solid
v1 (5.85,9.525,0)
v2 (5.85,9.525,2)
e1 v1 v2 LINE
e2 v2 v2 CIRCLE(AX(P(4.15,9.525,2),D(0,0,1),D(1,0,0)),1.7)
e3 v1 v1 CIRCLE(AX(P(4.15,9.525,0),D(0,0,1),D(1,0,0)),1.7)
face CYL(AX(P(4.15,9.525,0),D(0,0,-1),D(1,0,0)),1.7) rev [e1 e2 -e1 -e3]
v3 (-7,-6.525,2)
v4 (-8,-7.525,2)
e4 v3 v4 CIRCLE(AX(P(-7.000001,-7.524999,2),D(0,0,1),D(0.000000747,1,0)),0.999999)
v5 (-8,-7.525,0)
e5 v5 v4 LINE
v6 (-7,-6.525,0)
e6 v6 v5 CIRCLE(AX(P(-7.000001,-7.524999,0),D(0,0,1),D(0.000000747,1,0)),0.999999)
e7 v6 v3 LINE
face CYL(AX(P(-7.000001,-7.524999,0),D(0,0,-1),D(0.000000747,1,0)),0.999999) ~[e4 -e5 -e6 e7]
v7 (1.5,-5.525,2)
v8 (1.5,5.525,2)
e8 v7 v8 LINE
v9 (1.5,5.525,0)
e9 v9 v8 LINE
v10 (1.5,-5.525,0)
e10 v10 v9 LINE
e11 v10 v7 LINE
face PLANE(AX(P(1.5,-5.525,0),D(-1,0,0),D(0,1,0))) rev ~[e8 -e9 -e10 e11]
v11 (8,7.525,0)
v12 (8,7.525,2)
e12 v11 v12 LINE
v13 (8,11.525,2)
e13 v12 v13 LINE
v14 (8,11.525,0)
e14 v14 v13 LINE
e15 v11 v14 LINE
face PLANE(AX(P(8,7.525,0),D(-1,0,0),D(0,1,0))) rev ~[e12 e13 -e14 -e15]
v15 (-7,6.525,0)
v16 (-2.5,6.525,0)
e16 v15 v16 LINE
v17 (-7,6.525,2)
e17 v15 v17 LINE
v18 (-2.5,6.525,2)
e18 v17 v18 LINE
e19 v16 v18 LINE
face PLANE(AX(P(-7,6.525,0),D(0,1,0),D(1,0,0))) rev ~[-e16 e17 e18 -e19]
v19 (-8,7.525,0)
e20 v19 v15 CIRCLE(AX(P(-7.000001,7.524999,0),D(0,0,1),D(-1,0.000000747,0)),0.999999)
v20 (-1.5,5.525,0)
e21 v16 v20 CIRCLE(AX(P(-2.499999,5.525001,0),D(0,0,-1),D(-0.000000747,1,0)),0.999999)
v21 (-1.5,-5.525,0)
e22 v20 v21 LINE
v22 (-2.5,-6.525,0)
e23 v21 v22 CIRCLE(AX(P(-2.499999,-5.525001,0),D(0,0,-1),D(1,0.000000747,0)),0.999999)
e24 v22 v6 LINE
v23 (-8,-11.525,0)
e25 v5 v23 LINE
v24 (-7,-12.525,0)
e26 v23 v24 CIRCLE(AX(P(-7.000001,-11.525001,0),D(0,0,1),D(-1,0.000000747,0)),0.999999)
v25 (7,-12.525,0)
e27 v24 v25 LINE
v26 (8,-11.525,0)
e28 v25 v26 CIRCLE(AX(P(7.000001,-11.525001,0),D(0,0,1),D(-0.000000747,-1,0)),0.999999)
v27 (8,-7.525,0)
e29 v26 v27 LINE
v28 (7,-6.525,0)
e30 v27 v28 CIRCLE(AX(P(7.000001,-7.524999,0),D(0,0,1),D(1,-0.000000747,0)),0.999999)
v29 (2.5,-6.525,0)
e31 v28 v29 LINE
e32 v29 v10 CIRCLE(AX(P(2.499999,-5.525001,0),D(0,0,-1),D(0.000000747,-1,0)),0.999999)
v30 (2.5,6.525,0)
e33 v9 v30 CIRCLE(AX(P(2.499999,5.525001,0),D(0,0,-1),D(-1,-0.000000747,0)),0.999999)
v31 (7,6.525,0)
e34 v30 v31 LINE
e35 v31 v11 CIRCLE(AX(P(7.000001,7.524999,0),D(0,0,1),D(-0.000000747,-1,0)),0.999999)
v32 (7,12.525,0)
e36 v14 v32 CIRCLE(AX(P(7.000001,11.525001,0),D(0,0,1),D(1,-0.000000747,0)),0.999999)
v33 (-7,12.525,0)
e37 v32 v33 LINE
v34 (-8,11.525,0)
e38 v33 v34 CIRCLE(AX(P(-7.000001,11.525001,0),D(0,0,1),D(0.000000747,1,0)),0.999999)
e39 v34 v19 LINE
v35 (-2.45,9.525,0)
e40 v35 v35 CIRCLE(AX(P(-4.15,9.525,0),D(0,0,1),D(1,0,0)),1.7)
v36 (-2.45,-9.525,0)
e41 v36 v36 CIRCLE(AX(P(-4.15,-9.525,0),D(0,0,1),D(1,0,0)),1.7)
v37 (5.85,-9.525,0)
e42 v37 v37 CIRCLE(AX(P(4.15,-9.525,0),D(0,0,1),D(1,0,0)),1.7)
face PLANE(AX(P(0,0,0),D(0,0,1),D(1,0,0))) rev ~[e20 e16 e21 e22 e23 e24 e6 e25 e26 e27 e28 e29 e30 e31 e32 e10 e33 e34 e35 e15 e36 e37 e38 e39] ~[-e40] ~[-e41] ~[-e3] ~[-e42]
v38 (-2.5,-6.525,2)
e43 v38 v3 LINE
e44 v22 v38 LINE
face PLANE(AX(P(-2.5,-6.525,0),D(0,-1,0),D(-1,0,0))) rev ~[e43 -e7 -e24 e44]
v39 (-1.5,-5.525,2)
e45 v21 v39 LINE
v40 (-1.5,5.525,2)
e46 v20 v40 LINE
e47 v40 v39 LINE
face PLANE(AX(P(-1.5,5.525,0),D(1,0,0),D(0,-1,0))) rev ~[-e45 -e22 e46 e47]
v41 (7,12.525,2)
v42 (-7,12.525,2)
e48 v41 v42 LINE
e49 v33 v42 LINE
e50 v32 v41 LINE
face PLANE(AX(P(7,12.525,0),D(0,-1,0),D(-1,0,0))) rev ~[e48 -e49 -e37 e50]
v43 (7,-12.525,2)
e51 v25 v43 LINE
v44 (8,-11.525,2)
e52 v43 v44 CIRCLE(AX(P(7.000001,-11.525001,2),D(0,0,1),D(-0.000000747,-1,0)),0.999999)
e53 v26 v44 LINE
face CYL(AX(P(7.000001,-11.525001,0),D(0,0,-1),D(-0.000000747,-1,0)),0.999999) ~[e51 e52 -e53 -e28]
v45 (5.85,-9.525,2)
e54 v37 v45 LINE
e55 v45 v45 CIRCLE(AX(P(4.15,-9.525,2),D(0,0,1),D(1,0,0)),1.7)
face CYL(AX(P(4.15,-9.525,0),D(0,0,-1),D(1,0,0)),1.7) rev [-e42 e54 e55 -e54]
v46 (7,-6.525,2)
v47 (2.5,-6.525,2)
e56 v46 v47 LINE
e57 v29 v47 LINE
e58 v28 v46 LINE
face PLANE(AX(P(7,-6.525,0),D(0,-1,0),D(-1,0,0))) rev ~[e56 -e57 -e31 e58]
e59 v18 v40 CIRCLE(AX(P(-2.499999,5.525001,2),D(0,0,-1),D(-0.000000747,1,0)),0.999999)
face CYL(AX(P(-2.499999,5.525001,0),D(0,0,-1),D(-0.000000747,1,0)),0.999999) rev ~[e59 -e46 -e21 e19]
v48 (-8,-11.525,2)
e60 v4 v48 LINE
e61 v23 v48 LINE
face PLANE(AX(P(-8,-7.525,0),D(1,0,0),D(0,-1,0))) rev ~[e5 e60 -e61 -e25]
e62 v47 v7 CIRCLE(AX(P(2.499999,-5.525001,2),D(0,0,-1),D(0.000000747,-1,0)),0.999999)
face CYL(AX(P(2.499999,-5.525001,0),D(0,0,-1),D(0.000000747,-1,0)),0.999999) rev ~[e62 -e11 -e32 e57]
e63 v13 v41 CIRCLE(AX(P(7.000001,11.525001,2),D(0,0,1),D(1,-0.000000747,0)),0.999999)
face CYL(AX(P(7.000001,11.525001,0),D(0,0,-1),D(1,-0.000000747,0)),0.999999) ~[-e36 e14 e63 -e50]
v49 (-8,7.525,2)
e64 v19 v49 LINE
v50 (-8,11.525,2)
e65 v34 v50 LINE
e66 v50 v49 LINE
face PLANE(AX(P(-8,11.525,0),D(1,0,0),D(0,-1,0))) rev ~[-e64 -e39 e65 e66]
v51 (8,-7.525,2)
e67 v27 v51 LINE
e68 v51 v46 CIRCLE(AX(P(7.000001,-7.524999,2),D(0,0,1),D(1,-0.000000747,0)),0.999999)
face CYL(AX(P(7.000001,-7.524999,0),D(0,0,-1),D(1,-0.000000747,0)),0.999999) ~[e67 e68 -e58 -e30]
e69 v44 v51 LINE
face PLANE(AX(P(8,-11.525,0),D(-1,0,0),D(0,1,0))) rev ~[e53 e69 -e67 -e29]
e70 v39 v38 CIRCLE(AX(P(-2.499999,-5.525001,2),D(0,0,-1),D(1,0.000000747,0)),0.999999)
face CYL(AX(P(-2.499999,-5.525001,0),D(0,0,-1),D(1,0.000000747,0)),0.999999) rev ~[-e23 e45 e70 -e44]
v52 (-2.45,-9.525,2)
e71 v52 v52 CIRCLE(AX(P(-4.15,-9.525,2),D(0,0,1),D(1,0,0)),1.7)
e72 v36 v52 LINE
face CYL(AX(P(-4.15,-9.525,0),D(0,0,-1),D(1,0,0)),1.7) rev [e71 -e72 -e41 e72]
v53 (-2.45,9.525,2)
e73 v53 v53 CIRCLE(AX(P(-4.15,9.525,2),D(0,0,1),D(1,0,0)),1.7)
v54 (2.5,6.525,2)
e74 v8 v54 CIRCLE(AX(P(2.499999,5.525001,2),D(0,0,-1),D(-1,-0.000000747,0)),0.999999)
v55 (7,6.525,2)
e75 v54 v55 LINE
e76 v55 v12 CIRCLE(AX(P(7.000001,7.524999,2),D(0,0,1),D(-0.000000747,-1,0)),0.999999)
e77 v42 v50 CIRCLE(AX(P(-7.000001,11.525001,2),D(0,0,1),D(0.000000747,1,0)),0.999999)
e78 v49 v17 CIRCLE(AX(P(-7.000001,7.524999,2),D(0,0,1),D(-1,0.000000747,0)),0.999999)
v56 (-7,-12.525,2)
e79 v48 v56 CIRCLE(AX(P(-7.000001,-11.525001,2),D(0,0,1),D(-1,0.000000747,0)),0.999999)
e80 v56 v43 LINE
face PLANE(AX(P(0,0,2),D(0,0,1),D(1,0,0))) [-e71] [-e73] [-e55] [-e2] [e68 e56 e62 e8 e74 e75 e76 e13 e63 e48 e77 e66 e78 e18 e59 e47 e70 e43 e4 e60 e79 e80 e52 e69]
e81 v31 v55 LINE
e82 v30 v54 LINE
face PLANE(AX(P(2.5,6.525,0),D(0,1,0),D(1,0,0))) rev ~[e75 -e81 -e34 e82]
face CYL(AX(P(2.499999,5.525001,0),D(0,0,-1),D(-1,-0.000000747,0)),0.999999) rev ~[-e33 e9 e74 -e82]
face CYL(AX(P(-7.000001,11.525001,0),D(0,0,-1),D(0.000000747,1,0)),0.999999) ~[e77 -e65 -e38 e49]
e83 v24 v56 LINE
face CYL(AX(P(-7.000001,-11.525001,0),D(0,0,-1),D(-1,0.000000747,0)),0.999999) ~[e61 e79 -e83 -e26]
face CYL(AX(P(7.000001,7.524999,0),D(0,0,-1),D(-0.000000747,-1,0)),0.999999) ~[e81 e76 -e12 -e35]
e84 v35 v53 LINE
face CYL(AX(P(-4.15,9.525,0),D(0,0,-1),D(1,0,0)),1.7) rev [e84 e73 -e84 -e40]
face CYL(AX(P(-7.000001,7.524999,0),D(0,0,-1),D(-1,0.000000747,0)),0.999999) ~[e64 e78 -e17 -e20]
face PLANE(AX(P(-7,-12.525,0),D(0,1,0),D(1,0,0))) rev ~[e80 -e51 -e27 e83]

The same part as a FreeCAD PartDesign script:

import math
import FreeCAD as App
import Part
import Sketcher
from FreeCAD import Vector

doc = App.newDocument("Part")
body = doc.addObject("PartDesign::Body", "Body")

sketch1 = doc.addObject("Sketcher::SketchObject", "Sketch")
body.addObject(sketch1)
sketch1.AttachmentSupport = (doc.XY_Plane, [""])
sketch1.MapMode = "FlatFace"
sketch1.addGeometry(Part.LineSegment(Vector(1.5, -5.525, 0), Vector(1.5, 5.525, 0)), False)
sketch1.addGeometry(Part.ArcOfCircle(Part.Circle(Vector(2.499999, 5.525001, 0), Vector(0, 0, 1), 0.999999), math.radians(89.999957), math.radians(180.000043)), False)
sketch1.addGeometry(Part.LineSegment(Vector(2.5, 6.525, 0), Vector(7, 6.525, 0)), False)
sketch1.addGeometry(Part.ArcOfCircle(Part.Circle(Vector(7.000001, 7.524999, 0), Vector(0, 0, 1), 0.999999), math.radians(-90.000043), math.radians(0.000043)), False)
sketch1.addGeometry(Part.LineSegment(Vector(8, 7.525, 0), Vector(8, 11.525, 0)), False)
sketch1.addGeometry(Part.ArcOfCircle(Part.Circle(Vector(7.000001, 11.525001, 0), Vector(0, 0, 1), 0.999999), math.radians(-0.000043), math.radians(90.000043)), False)
sketch1.addGeometry(Part.LineSegment(Vector(7, 12.525, 0), Vector(-7, 12.525, 0)), False)
sketch1.addGeometry(Part.ArcOfCircle(Part.Circle(Vector(-7.000001, 11.525001, 0), Vector(0, 0, 1), 0.999999), math.radians(89.999957), math.radians(180.000043)), False)
sketch1.addGeometry(Part.LineSegment(Vector(-8, 11.525, 0), Vector(-8, 7.525, 0)), False)
sketch1.addGeometry(Part.ArcOfCircle(Part.Circle(Vector(-7.000001, 7.524999, 0), Vector(0, 0, 1), 0.999999), math.radians(179.999957), math.radians(270.000043)), False)
sketch1.addGeometry(Part.LineSegment(Vector(-7, 6.525, 0), Vector(-2.5, 6.525, 0)), False)
sketch1.addGeometry(Part.ArcOfCircle(Part.Circle(Vector(-2.499999, 5.525001, 0), Vector(0, 0, 1), 0.999999), math.radians(-0.000043), math.radians(90.000043)), False)
sketch1.addGeometry(Part.LineSegment(Vector(-1.5, 5.525, 0), Vector(-1.5, -5.525, 0)), False)
sketch1.addGeometry(Part.ArcOfCircle(Part.Circle(Vector(-2.499999, -5.525001, 0), Vector(0, 0, 1), 0.999999), math.radians(-90.000043), math.radians(0.000043)), False)
sketch1.addGeometry(Part.LineSegment(Vector(-2.5, -6.525, 0), Vector(-7, -6.525, 0)), False)
sketch1.addGeometry(Part.ArcOfCircle(Part.Circle(Vector(-7.000001, -7.524999, 0), Vector(0, 0, 1), 0.999999), math.radians(89.999957), math.radians(180.000043)), False)
sketch1.addGeometry(Part.LineSegment(Vector(-8, -7.525, 0), Vector(-8, -11.525, 0)), False)
sketch1.addGeometry(Part.ArcOfCircle(Part.Circle(Vector(-7.000001, -11.525001, 0), Vector(0, 0, 1), 0.999999), math.radians(179.999957), math.radians(270.000043)), False)
sketch1.addGeometry(Part.LineSegment(Vector(-7, -12.525, 0), Vector(7, -12.525, 0)), False)
sketch1.addGeometry(Part.ArcOfCircle(Part.Circle(Vector(7.000001, -11.525001, 0), Vector(0, 0, 1), 0.999999), math.radians(-90.000043), math.radians(0.000043)), False)
sketch1.addGeometry(Part.LineSegment(Vector(8, -11.525, 0), Vector(8, -7.525, 0)), False)
sketch1.addGeometry(Part.ArcOfCircle(Part.Circle(Vector(7.000001, -7.524999, 0), Vector(0, 0, 1), 0.999999), math.radians(-0.000043), math.radians(90.000043)), False)
sketch1.addGeometry(Part.LineSegment(Vector(7, -6.525, 0), Vector(2.5, -6.525, 0)), False)
sketch1.addGeometry(Part.ArcOfCircle(Part.Circle(Vector(2.499999, -5.525001, 0), Vector(0, 0, 1), 0.999999), math.radians(179.999957), math.radians(270.000043)), False)
sketch1.addGeometry(Part.Circle(Vector(-4.15, -9.525, 0), Vector(0, 0, 1), 1.7), False)
sketch1.addGeometry(Part.Circle(Vector(4.15, -9.525, 0), Vector(0, 0, 1), 1.7), False)
sketch1.addGeometry(Part.Circle(Vector(-4.15, 9.525, 0), Vector(0, 0, 1), 1.7), False)
sketch1.addGeometry(Part.Circle(Vector(4.15, 9.525, 0), Vector(0, 0, 1), 1.7), False)
sketch1.addConstraint(Sketcher.Constraint("Tangent", 0, 2, 1, 2))
sketch1.addConstraint(Sketcher.Constraint("Tangent", 1, 1, 2, 1))
sketch1.addConstraint(Sketcher.Constraint("Tangent", 2, 2, 3, 1))
sketch1.addConstraint(Sketcher.Constraint("Tangent", 3, 2, 4, 1))
sketch1.addConstraint(Sketcher.Constraint("Tangent", 4, 2, 5, 1))
sketch1.addConstraint(Sketcher.Constraint("Tangent", 5, 2, 6, 1))
sketch1.addConstraint(Sketcher.Constraint("Tangent", 6, 2, 7, 1))
sketch1.addConstraint(Sketcher.Constraint("Tangent", 7, 2, 8, 1))
sketch1.addConstraint(Sketcher.Constraint("Tangent", 8, 2, 9, 1))
sketch1.addConstraint(Sketcher.Constraint("Tangent", 9, 2, 10, 1))
sketch1.addConstraint(Sketcher.Constraint("Tangent", 10, 2, 11, 2))
sketch1.addConstraint(Sketcher.Constraint("Tangent", 11, 1, 12, 1))
sketch1.addConstraint(Sketcher.Constraint("Tangent", 12, 2, 13, 2))
sketch1.addConstraint(Sketcher.Constraint("Tangent", 13, 1, 14, 1))
sketch1.addConstraint(Sketcher.Constraint("Tangent", 14, 2, 15, 1))
sketch1.addConstraint(Sketcher.Constraint("Tangent", 15, 2, 16, 1))
sketch1.addConstraint(Sketcher.Constraint("Tangent", 16, 2, 17, 1))
sketch1.addConstraint(Sketcher.Constraint("Tangent", 17, 2, 18, 1))
sketch1.addConstraint(Sketcher.Constraint("Tangent", 18, 2, 19, 1))
sketch1.addConstraint(Sketcher.Constraint("Tangent", 19, 2, 20, 1))
sketch1.addConstraint(Sketcher.Constraint("Tangent", 20, 2, 21, 1))
sketch1.addConstraint(Sketcher.Constraint("Tangent", 21, 2, 22, 1))
sketch1.addConstraint(Sketcher.Constraint("Tangent", 22, 2, 23, 2))
sketch1.addConstraint(Sketcher.Constraint("Tangent", 23, 1, 0, 1))
sketch1.addConstraint(Sketcher.Constraint("Vertical", 0))
sketch1.addConstraint(Sketcher.Constraint("Horizontal", 2))
sketch1.addConstraint(Sketcher.Constraint("Vertical", 4))
sketch1.addConstraint(Sketcher.Constraint("Horizontal", 6))
sketch1.addConstraint(Sketcher.Constraint("Vertical", 8))
sketch1.addConstraint(Sketcher.Constraint("Horizontal", 10))
sketch1.addConstraint(Sketcher.Constraint("Vertical", 12))
sketch1.addConstraint(Sketcher.Constraint("Horizontal", 14))
sketch1.addConstraint(Sketcher.Constraint("Vertical", 16))
sketch1.addConstraint(Sketcher.Constraint("Horizontal", 18))
sketch1.addConstraint(Sketcher.Constraint("Vertical", 20))
sketch1.addConstraint(Sketcher.Constraint("Horizontal", 22))
sketch1.addConstraint(Sketcher.Constraint("Equal", 1, 3))
sketch1.addConstraint(Sketcher.Constraint("Equal", 3, 5))
sketch1.addConstraint(Sketcher.Constraint("Equal", 5, 7))
sketch1.addConstraint(Sketcher.Constraint("Equal", 7, 9))
sketch1.addConstraint(Sketcher.Constraint("Equal", 9, 11))
sketch1.addConstraint(Sketcher.Constraint("Equal", 11, 13))
sketch1.addConstraint(Sketcher.Constraint("Equal", 13, 15))
sketch1.addConstraint(Sketcher.Constraint("Equal", 15, 17))
sketch1.addConstraint(Sketcher.Constraint("Equal", 17, 19))
sketch1.addConstraint(Sketcher.Constraint("Equal", 19, 21))
sketch1.addConstraint(Sketcher.Constraint("Equal", 21, 23))
sketch1.addConstraint(Sketcher.Constraint("Equal", 24, 25))
sketch1.addConstraint(Sketcher.Constraint("Equal", 25, 26))
sketch1.addConstraint(Sketcher.Constraint("Equal", 26, 27))
sketch1.addConstraint(Sketcher.Constraint("Symmetric", 1, 3, 13, 3, -1, 1))
sketch1.addConstraint(Sketcher.Constraint("Symmetric", 5, 3, 17, 3, -1, 1))
sketch1.addConstraint(Sketcher.Constraint("Symmetric", 9, 3, 21, 3, -1, 1))
sketch1.addConstraint(Sketcher.Constraint("Symmetric", 25, 3, 26, 3, -1, 1))
sketch1.addConstraint(Sketcher.Constraint("Symmetric", 24, 3, 27, 3, -1, 1))
sketch1.addConstraint(Sketcher.Constraint("Symmetric", 3, 3, 9, 3, -2))
sketch1.addConstraint(Sketcher.Constraint("Symmetric", 24, 3, 25, 3, -2))
sketch1.addConstraint(Sketcher.Constraint("Radius", 1, 0.999999))
sketch1.addConstraint(Sketcher.Constraint("Diameter", 24, 3.4))
sketch1.addConstraint(Sketcher.Constraint("DistanceX", 6, 2, 6, 1, 14.0))
sketch1.addConstraint(Sketcher.Constraint("DistanceY", 4, 1, 4, 2, 4.0))
sketch1.addConstraint(Sketcher.Constraint("DistanceX", 2, 1, 2, 2, 4.5))
sketch1.addConstraint(Sketcher.Constraint("DistanceY", 17, 3, 24, 3, 2.000001))
sketch1.addConstraint(Sketcher.Constraint("DistanceY", 0, 1, 0, 2, 11.05))
sketch1.addConstraint(Sketcher.Constraint("DistanceX", 24, 3, 25, 3, 8.3))
pad1 = doc.addObject("PartDesign::Pad", "Pad")
body.addObject(pad1)
pad1.Profile = sketch1
pad1.Length = 2

doc.recompute()
